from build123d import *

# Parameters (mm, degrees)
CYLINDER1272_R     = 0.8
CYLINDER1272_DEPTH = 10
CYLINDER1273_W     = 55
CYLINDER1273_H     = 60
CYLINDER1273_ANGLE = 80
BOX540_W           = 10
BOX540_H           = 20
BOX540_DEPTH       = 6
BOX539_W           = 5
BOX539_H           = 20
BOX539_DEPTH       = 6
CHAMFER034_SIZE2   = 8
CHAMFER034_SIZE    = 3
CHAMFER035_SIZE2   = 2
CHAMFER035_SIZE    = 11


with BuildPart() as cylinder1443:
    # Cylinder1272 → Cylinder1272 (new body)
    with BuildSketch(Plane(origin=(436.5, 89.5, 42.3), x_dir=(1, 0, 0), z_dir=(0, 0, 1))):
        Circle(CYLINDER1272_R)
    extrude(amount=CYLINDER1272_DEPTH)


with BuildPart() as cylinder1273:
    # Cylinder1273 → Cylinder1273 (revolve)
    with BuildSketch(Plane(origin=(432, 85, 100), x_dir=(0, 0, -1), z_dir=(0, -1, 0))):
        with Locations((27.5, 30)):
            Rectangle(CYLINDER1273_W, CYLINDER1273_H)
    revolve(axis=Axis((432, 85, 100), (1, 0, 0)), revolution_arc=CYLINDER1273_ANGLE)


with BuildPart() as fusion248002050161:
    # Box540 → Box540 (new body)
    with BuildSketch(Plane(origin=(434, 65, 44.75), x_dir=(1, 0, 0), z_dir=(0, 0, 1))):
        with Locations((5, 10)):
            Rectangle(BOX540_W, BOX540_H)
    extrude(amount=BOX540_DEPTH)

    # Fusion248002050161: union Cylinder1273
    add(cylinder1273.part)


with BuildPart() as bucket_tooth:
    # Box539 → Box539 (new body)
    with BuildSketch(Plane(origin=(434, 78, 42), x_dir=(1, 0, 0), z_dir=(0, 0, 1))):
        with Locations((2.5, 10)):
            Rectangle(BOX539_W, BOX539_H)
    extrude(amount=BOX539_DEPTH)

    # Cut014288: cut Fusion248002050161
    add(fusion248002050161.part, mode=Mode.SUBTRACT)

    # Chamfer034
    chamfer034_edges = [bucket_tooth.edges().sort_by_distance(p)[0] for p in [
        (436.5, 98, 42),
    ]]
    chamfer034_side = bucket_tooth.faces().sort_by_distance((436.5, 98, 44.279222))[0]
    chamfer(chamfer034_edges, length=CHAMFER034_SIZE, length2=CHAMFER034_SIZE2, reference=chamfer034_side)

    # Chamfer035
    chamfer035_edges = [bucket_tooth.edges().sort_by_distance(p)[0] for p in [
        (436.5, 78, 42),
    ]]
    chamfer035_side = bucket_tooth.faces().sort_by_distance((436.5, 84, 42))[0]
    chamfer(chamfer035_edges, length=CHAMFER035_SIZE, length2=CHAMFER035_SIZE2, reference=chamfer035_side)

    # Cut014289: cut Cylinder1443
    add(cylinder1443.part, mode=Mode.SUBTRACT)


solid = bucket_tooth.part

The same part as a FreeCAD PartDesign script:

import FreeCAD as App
import Part
import Sketcher

V = App.Vector
Q = App.Units.Quantity


def edges_at(feature, points):
    """Names of the edges that pass closest to the given points."""
    edges = feature.Shape.Edges
    near = lambda p: min(range(len(edges)), key=lambda i: edges[i].distToShape(Part.Vertex(*p))[0])
    return sorted({f"Edge{near(p) + 1}" for p in points})


def add_polygon(sketch, points):
    """Adds a closed chain of lines whose ends are joined by coincident constraints."""
    first, n = sketch.GeometryCount, len(points)
    for a, b in zip(points, points[1:] + points[:1]):
        sketch.addGeometry(Part.LineSegment(App.Vector(*a, 0), App.Vector(*b, 0)), False)
    for i in range(n):
        sketch.addConstraint(Sketcher.Constraint("Coincident", first + i, 2, first + (i + 1) % n, 1))

doc = App.newDocument("Part")
body = doc.addObject("PartDesign::Body", "Body")

# Sketch on XY plane
sketch1 = doc.addObject("Sketcher::SketchObject", "Sketch")
body.addObject(sketch1)
sketch1.AttachmentSupport = (doc.XY_Plane, [""])
sketch1.MapMode = "FlatFace"
sketch1.AttachmentOffset = App.Placement(V(0, 0, 42.3), App.Rotation())
sketch1.addGeometry(Part.Circle(V(436.5, 89.5, 0), V(0, 0, 1), 0.8), False)
sketch1.addConstraint(Sketcher.Constraint("Diameter", 0, Q("1.6 mm")))
sketch1.addConstraint(Sketcher.Constraint("DistanceX", -1, 1, 0, 3, Q("436.5 mm")))
sketch1.addConstraint(Sketcher.Constraint("DistanceY", -1, 1, 0, 3, Q("89.5 mm")))
pad1 = doc.addObject("PartDesign::Pad", "Pad")
body.addObject(pad1)
pad1.Profile = sketch1
pad1.Length = 10
body2 = doc.addObject("PartDesign::Body", "Body001")

# Sketch on XZ plane
sketch2 = doc.addObject("Sketcher::SketchObject", "Sketch001")
body2.addObject(sketch2)
sketch2.AttachmentSupport = (doc.getObject("XZ_Plane001"), [""])
sketch2.MapMode = "FlatFace"
sketch2.AttachmentOffset = App.Placement(V(0, 0, -85), App.Rotation())
add_polygon(sketch2, [(492, 100), (432, 100), (432, 45), (492, 45)])  # lines 0-3
sketch2.addGeometry(Part.LineSegment(V(432, 100, 0), V(492, 100, 0)), True)  # axis
sketch2.addConstraint(Sketcher.Constraint("Horizontal", 0))
sketch2.addConstraint(Sketcher.Constraint("Vertical", 1))
sketch2.addConstraint(Sketcher.Constraint("Horizontal", 2))
sketch2.addConstraint(Sketcher.Constraint("Vertical", 3))
sketch2.addConstraint(Sketcher.Constraint("Horizontal", 4))
sketch2.addConstraint(Sketcher.Constraint("Coincident", 4, 1, 0, 2))
sketch2.addConstraint(Sketcher.Constraint("Vertical", 2, 2, 4, 2))
sketch2.addConstraint(Sketcher.Constraint("DistanceX", 0, 2, 0, 1, Q("60 mm")))
sketch2.addConstraint(Sketcher.Constraint("DistanceY", 1, 2, 1, 1, Q("55 mm")))
sketch2.addConstraint(Sketcher.Constraint("DistanceX", -1, 1, 0, 2, Q("432 mm")))
sketch2.addConstraint(Sketcher.Constraint("DistanceY", -1, 1, 0, 2, Q("100 mm")))
revolution = doc.addObject("PartDesign::Revolution", "Revolution")
body2.addObject(revolution)
revolution.Profile = sketch2
revolution.ReferenceAxis = (sketch2, ["Axis0"])
revolution.Angle = 80
body3 = doc.addObject("PartDesign::Body", "Body002")

# Sketch on XY plane
sketch3 = doc.addObject("Sketcher::SketchObject", "Sketch002")
body3.addObject(sketch3)
sketch3.AttachmentSupport = (doc.getObject("XY_Plane002"), [""])
sketch3.MapMode = "FlatFace"
sketch3.AttachmentOffset = App.Placement(V(0, 0, 44.75), App.Rotation())
add_polygon(sketch3, [(434, 85), (434, 65), (444, 65), (444, 85)])  # lines 0-3
sketch3.addConstraint(Sketcher.Constraint("Vertical", 0))
sketch3.addConstraint(Sketcher.Constraint("Horizontal", 1))
sketch3.addConstraint(Sketcher.Constraint("Vertical", 2))
sketch3.addConstraint(Sketcher.Constraint("Horizontal", 3))
sketch3.addConstraint(Sketcher.Constraint("DistanceX", 1, 1, 1, 2, Q("10 mm")))
sketch3.addConstraint(Sketcher.Constraint("DistanceY", 0, 2, 0, 1, Q("20 mm")))
sketch3.addConstraint(Sketcher.Constraint("DistanceX", -1, 1, 0, 2, Q("434 mm")))
sketch3.addConstraint(Sketcher.Constraint("DistanceY", -1, 1, 0, 2, Q("65 mm")))
pad2 = doc.addObject("PartDesign::Pad", "Pad001")
body3.addObject(pad2)
pad2.Profile = sketch3
pad2.Length = 6
doc.recompute()

boolean = doc.addObject("PartDesign::Boolean", "Boolean")
body3.addObject(boolean)
boolean.Type = "Fuse"
boolean.addObjects([body2])
body4 = doc.addObject("PartDesign::Body", "Body003")

# Sketch on XY plane
sketch4 = doc.addObject("Sketcher::SketchObject", "Sketch003")
body4.addObject(sketch4)
sketch4.AttachmentSupport = (doc.getObject("XY_Plane003"), [""])
sketch4.MapMode = "FlatFace"
sketch4.AttachmentOffset = App.Placement(V(0, 0, 42), App.Rotation())
add_polygon(sketch4, [(434, 98), (434, 78), (439, 78), (439, 98)])  # lines 0-3
sketch4.addConstraint(Sketcher.Constraint("Vertical", 0))
sketch4.addConstraint(Sketcher.Constraint("Horizontal", 1))
sketch4.addConstraint(Sketcher.Constraint("Vertical", 2))
sketch4.addConstraint(Sketcher.Constraint("Horizontal", 3))
sketch4.addConstraint(Sketcher.Constraint("DistanceX", 1, 1, 1, 2, Q("5 mm")))
sketch4.addConstraint(Sketcher.Constraint("DistanceY", 0, 2, 0, 1, Q("20 mm")))
sketch4.addConstraint(Sketcher.Constraint("DistanceX", -1, 1, 0, 2, Q("434 mm")))
sketch4.addConstraint(Sketcher.Constraint("DistanceY", -1, 1, 0, 2, Q("78 mm")))
pad3 = doc.addObject("PartDesign::Pad", "Pad002")
body4.addObject(pad3)
pad3.Profile = sketch4
pad3.Length = 6
doc.recompute()

boolean2 = doc.addObject("PartDesign::Boolean", "Boolean001")
body4.addObject(boolean2)
boolean2.Type = "Cut"
boolean2.addObjects([body3])
doc.recompute()

chamfer = doc.addObject("PartDesign::Chamfer", "Chamfer")
body4.addObject(chamfer)
chamfer.Base = (boolean2, edges_at(boolean2, [(436.5, 98, 42)]))
chamfer.ChamferType = "Two distances"
chamfer.Size = 3
chamfer.Size2 = 8
chamfer.FlipDirection = True
doc.recompute()

chamfer2 = doc.addObject("PartDesign::Chamfer", "Chamfer001")
body4.addObject(chamfer2)
chamfer2.Base = (chamfer, edges_at(chamfer, [(436.5, 78, 42)]))
chamfer2.ChamferType = "Two distances"
chamfer2.Size = 11
chamfer2.Size2 = 2
doc.recompute()

boolean3 = doc.addObject("PartDesign::Boolean", "Boolean002")
body4.addObject(boolean3)
boolean3.Type = "Cut"
boolean3.addObjects([body])

doc.recompute()
